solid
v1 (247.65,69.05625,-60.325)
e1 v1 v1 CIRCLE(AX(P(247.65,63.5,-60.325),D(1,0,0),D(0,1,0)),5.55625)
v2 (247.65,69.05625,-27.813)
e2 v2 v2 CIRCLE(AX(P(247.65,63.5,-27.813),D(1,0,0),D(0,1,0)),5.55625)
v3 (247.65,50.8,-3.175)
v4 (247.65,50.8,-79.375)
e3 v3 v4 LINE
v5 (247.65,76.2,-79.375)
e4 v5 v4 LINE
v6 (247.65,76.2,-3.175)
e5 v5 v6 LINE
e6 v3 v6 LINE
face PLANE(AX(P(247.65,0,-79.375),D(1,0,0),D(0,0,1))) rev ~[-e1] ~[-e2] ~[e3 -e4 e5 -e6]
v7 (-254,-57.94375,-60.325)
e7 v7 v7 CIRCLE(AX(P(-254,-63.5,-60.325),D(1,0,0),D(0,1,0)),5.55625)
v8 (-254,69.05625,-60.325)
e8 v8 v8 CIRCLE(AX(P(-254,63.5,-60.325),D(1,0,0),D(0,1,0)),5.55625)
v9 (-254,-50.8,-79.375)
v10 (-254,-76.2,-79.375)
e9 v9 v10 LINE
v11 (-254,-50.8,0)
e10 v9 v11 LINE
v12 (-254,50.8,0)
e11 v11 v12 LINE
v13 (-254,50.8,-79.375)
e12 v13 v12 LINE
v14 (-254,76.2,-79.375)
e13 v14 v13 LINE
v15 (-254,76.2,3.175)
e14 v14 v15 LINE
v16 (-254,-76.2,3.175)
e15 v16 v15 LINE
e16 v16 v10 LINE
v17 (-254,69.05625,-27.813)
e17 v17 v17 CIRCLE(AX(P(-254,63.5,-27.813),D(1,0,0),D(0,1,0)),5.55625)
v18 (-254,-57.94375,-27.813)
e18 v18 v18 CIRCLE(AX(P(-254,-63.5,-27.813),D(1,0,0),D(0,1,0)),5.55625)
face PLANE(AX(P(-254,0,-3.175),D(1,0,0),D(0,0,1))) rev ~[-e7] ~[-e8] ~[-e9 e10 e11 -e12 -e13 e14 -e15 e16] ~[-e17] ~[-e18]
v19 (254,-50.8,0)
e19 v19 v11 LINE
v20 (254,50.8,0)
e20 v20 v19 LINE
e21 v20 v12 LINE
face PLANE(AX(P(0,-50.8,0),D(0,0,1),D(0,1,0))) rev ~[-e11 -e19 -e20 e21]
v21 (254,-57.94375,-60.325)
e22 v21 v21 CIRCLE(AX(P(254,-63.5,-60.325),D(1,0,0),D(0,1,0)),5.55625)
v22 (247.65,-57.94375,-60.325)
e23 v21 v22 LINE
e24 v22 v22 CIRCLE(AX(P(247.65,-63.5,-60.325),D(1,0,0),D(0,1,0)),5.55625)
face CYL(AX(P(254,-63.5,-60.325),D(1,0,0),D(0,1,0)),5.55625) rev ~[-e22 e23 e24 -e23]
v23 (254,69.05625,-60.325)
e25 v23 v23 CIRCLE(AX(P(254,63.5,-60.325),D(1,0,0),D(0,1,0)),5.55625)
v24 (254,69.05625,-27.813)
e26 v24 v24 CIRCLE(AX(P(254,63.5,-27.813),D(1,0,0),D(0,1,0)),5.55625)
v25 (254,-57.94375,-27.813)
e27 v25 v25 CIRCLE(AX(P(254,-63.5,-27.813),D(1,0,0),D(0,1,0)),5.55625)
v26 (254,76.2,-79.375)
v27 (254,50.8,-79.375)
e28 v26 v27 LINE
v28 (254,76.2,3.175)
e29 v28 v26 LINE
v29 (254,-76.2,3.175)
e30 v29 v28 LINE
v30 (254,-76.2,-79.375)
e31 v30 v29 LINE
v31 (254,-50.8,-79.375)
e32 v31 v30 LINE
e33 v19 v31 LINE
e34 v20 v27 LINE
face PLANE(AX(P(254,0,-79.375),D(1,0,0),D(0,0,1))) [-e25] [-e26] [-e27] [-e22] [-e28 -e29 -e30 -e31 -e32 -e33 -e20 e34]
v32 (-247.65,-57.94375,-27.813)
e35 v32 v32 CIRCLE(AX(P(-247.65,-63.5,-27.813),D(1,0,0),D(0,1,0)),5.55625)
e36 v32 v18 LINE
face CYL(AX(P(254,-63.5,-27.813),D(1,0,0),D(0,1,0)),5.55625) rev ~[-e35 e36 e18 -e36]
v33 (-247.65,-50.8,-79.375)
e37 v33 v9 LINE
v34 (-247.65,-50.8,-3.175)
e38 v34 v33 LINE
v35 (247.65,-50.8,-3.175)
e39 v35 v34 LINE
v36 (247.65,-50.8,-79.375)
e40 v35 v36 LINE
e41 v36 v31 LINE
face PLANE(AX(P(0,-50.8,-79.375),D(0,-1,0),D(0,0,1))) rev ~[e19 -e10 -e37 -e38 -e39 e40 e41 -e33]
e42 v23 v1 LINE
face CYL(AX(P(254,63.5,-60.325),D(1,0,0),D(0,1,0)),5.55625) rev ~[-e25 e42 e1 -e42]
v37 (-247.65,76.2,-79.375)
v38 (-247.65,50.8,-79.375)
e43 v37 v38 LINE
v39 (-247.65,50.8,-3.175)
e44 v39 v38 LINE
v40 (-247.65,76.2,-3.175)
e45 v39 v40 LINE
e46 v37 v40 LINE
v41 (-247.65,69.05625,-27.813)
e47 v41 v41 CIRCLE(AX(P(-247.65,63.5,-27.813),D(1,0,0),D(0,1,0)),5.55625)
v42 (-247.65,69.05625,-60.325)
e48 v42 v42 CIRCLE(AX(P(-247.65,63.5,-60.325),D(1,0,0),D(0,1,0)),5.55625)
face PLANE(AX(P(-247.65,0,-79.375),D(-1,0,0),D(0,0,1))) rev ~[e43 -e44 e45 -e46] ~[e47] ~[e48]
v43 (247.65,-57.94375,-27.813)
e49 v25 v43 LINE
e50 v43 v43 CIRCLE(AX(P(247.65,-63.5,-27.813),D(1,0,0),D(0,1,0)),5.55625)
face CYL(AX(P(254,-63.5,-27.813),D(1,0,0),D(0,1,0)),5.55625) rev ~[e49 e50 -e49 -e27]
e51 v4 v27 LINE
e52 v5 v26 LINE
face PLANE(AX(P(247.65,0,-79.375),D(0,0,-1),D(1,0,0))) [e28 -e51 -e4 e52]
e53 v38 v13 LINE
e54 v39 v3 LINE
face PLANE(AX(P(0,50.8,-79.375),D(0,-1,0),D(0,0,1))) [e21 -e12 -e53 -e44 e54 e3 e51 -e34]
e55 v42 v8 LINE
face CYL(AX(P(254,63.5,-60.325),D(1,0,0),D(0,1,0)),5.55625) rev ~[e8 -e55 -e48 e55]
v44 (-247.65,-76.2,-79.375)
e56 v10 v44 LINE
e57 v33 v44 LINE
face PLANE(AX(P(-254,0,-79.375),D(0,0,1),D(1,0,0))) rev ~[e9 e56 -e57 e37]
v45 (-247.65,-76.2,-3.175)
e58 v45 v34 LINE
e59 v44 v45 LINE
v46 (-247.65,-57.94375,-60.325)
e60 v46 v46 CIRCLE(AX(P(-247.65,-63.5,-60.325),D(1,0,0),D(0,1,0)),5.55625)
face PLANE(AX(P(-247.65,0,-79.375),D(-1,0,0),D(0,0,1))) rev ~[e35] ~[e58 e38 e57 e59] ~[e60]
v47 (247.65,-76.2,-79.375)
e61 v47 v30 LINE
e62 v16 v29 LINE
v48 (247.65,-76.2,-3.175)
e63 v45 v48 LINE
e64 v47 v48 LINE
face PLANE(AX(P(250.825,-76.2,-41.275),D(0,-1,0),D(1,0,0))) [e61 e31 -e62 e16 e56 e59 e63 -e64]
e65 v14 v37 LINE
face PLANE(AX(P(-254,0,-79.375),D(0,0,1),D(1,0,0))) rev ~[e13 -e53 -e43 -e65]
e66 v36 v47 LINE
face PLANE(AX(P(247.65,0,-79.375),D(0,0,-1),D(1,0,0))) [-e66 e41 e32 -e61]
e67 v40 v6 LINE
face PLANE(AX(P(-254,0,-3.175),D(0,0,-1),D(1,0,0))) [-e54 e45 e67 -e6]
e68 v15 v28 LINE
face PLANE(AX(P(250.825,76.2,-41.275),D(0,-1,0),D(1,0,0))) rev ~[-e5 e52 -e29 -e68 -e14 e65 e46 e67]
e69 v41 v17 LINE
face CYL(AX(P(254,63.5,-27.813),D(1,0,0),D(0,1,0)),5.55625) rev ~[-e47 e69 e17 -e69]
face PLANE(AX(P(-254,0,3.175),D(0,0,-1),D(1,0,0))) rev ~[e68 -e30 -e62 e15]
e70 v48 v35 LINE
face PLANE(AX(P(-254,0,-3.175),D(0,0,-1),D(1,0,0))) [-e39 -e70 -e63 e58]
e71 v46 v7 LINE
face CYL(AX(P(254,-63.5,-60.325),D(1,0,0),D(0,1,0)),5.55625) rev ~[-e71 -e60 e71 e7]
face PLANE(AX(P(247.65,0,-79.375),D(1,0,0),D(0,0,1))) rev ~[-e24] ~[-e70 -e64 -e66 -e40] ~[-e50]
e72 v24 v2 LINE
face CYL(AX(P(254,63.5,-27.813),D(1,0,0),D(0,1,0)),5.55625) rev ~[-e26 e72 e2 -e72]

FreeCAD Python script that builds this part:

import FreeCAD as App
import Part
import Sketcher

V = App.Vector
Q = App.Units.Quantity


def add_polygon(sketch, points):
    """Adds a closed chain of lines whose ends are joined by coincident constraints."""
    first, n = sketch.GeometryCount, len(points)
    for a, b in zip(points, points[1:] + points[:1]):
        sketch.addGeometry(Part.LineSegment(App.Vector(*a, 0), App.Vector(*b, 0)), False)
    for i in range(n):
        sketch.addConstraint(Sketcher.Constraint("Coincident", first + i, 2, first + (i + 1) % n, 1))

doc = App.newDocument("Part")
body = doc.addObject("PartDesign::Body", "Body")

# Sketch on XZ plane
sketch1 = body.newObject("Sketcher::SketchObject", "Sketch")
sketch1.AttachmentSupport = (doc.getObject("XZ_Plane"), [""])
sketch1.MapMode = "FlatFace"
add_polygon(sketch1, [(-254, 3), (-254, -3), (254, -3), (254, 3)])  # lines 0-3
sketch1.addConstraint([
    Sketcher.Constraint("Vertical", 0),
    Sketcher.Constraint("Horizontal", 1),
    Sketcher.Constraint("Vertical", 2),
    Sketcher.Constraint("Horizontal", 3),
    Sketcher.Constraint("Symmetric", 0, 2, 2, 2, -1, 1),
    Sketcher.Constraint("DistanceX", 1, 1, 1, 2, Q("20 in")),
    Sketcher.Constraint("DistanceY", 0, 2, 0, 1, Q("0.25 in")),
])
pad1 = body.newObject("PartDesign::Pad", "Pad")
pad1.Profile = sketch1
pad1.Length = Q("6 in")
pad1.Midplane = True

# Sketch on XZ plane
sketch2 = body.newObject("Sketcher::SketchObject", "Sketch001")
sketch2.AttachmentSupport = (doc.getObject("XZ_Plane"), [""])
sketch2.MapMode = "FlatFace"
add_polygon(sketch2, [(-254, -3), (-254, -79), (-248, -79), (-248, -3)])  # lines 0-3
add_polygon(sketch2, [(248, -3), (248, -79), (254, -79), (254, -3)])  # lines 4-7
sketch2.addConstraint([
    Sketcher.Constraint("Vertical", 0),
    Sketcher.Constraint("Horizontal", 1),
    Sketcher.Constraint("Vertical", 2),
    Sketcher.Constraint("Horizontal", 3),
    Sketcher.Constraint("Vertical", 4),
    Sketcher.Constraint("Horizontal", 5),
    Sketcher.Constraint("Vertical", 6),
    Sketcher.Constraint("Horizontal", 7),
    Sketcher.Constraint("Symmetric", 1, 2, 4, 2, -2),
    Sketcher.Constraint("Symmetric", 3, 2, 6, 2, -2),
    Sketcher.Constraint("DistanceY", 0, 2, 0, 1, Q("3 in")),
    Sketcher.Constraint("DistanceX", 0, 2, -1, 1, Q("10 in")),
    Sketcher.Constraint("DistanceX", 1, 1, 1, 2, Q("0.25 in")),
    Sketcher.Constraint("DistanceY", 0, 2, -1, 1, Q("3.125 in")),
])
pad2 = body.newObject("PartDesign::Pad", "Pad001")
pad2.Profile = sketch2
pad2.Length = Q("6 in")
pad2.Midplane = True

# Sketch on YZ plane
sketch3 = body.newObject("Sketcher::SketchObject", "Sketch002")
sketch3.AttachmentSupport = (doc.getObject("YZ_Plane"), [""])
sketch3.MapMode = "FlatFace"
add_polygon(sketch3, [(-51, 0), (-51, -79), (51, -79), (51, 0)])  # lines 0-3
sketch3.addConstraint([
    Sketcher.Constraint("Vertical", 0),
    Sketcher.Constraint("Horizontal", 1),
    Sketcher.Constraint("Vertical", 2),
    Sketcher.Constraint("Horizontal", 3),
    Sketcher.Constraint("Symmetric", 2, 2, 3, 2, -1, 1),
    Sketcher.Constraint("DistanceX", 1, 1, 1, 2, Q("4 in")),
    Sketcher.Constraint("DistanceY", 0, 2, 0, 1, Q("3.125 in")),
])
pocket1 = body.newObject("PartDesign::Pocket", "Pocket")
pocket1.Profile = sketch3
pocket1.Type = "ThroughAll"
pocket1.Midplane = True

# Sketch on YZ plane
sketch4 = body.newObject("Sketcher::SketchObject", "Sketch003")
sketch4.AttachmentSupport = (doc.getObject("YZ_Plane"), [""])
sketch4.MapMode = "FlatFace"
sketch4.AttachmentOffset = App.Placement(V(0, 0, 10 * 25.4), App.Rotation())
sketch4.addGeometry([
    Part.Circle(V(-64, -28, 0), V(0, 0, 1), 6),
    Part.Circle(V(-64, -60, 0), V(0, 0, 1), 6),
    Part.Circle(V(64, -28, 0), V(0, 0, 1), 6),
    Part.Circle(V(64, -60, 0), V(0, 0, 1), 6),
], False)
sketch4.addConstraint([
    Sketcher.Constraint("Equal", 0, 1),
    Sketcher.Constraint("Equal", 1, 2),
    Sketcher.Constraint("Equal", 2, 3),
    Sketcher.Constraint("Symmetric", 0, 3, 2, 3, -2),
    Sketcher.Constraint("Symmetric", 1, 3, 3, 3, -2),
    Sketcher.Constraint("Vertical", 0, 3, 1, 3),
    Sketcher.Constraint("Diameter", 0, Q("0.4375 in")),
    Sketcher.Constraint("DistanceX", 0, 3, 2, 3, Q("5 in")),
    Sketcher.Constraint("DistanceY", 1, 3, 0, 3, Q("1.28 in")),
    Sketcher.Constraint("DistanceY", 0, 3, -1, 1, Q("1.095 in")),
])
pocket2 = body.newObject("PartDesign::Pocket", "Pocket001")
pocket2.Profile = sketch4
pocket2.Type = "ThroughAll"

doc.recompute()
